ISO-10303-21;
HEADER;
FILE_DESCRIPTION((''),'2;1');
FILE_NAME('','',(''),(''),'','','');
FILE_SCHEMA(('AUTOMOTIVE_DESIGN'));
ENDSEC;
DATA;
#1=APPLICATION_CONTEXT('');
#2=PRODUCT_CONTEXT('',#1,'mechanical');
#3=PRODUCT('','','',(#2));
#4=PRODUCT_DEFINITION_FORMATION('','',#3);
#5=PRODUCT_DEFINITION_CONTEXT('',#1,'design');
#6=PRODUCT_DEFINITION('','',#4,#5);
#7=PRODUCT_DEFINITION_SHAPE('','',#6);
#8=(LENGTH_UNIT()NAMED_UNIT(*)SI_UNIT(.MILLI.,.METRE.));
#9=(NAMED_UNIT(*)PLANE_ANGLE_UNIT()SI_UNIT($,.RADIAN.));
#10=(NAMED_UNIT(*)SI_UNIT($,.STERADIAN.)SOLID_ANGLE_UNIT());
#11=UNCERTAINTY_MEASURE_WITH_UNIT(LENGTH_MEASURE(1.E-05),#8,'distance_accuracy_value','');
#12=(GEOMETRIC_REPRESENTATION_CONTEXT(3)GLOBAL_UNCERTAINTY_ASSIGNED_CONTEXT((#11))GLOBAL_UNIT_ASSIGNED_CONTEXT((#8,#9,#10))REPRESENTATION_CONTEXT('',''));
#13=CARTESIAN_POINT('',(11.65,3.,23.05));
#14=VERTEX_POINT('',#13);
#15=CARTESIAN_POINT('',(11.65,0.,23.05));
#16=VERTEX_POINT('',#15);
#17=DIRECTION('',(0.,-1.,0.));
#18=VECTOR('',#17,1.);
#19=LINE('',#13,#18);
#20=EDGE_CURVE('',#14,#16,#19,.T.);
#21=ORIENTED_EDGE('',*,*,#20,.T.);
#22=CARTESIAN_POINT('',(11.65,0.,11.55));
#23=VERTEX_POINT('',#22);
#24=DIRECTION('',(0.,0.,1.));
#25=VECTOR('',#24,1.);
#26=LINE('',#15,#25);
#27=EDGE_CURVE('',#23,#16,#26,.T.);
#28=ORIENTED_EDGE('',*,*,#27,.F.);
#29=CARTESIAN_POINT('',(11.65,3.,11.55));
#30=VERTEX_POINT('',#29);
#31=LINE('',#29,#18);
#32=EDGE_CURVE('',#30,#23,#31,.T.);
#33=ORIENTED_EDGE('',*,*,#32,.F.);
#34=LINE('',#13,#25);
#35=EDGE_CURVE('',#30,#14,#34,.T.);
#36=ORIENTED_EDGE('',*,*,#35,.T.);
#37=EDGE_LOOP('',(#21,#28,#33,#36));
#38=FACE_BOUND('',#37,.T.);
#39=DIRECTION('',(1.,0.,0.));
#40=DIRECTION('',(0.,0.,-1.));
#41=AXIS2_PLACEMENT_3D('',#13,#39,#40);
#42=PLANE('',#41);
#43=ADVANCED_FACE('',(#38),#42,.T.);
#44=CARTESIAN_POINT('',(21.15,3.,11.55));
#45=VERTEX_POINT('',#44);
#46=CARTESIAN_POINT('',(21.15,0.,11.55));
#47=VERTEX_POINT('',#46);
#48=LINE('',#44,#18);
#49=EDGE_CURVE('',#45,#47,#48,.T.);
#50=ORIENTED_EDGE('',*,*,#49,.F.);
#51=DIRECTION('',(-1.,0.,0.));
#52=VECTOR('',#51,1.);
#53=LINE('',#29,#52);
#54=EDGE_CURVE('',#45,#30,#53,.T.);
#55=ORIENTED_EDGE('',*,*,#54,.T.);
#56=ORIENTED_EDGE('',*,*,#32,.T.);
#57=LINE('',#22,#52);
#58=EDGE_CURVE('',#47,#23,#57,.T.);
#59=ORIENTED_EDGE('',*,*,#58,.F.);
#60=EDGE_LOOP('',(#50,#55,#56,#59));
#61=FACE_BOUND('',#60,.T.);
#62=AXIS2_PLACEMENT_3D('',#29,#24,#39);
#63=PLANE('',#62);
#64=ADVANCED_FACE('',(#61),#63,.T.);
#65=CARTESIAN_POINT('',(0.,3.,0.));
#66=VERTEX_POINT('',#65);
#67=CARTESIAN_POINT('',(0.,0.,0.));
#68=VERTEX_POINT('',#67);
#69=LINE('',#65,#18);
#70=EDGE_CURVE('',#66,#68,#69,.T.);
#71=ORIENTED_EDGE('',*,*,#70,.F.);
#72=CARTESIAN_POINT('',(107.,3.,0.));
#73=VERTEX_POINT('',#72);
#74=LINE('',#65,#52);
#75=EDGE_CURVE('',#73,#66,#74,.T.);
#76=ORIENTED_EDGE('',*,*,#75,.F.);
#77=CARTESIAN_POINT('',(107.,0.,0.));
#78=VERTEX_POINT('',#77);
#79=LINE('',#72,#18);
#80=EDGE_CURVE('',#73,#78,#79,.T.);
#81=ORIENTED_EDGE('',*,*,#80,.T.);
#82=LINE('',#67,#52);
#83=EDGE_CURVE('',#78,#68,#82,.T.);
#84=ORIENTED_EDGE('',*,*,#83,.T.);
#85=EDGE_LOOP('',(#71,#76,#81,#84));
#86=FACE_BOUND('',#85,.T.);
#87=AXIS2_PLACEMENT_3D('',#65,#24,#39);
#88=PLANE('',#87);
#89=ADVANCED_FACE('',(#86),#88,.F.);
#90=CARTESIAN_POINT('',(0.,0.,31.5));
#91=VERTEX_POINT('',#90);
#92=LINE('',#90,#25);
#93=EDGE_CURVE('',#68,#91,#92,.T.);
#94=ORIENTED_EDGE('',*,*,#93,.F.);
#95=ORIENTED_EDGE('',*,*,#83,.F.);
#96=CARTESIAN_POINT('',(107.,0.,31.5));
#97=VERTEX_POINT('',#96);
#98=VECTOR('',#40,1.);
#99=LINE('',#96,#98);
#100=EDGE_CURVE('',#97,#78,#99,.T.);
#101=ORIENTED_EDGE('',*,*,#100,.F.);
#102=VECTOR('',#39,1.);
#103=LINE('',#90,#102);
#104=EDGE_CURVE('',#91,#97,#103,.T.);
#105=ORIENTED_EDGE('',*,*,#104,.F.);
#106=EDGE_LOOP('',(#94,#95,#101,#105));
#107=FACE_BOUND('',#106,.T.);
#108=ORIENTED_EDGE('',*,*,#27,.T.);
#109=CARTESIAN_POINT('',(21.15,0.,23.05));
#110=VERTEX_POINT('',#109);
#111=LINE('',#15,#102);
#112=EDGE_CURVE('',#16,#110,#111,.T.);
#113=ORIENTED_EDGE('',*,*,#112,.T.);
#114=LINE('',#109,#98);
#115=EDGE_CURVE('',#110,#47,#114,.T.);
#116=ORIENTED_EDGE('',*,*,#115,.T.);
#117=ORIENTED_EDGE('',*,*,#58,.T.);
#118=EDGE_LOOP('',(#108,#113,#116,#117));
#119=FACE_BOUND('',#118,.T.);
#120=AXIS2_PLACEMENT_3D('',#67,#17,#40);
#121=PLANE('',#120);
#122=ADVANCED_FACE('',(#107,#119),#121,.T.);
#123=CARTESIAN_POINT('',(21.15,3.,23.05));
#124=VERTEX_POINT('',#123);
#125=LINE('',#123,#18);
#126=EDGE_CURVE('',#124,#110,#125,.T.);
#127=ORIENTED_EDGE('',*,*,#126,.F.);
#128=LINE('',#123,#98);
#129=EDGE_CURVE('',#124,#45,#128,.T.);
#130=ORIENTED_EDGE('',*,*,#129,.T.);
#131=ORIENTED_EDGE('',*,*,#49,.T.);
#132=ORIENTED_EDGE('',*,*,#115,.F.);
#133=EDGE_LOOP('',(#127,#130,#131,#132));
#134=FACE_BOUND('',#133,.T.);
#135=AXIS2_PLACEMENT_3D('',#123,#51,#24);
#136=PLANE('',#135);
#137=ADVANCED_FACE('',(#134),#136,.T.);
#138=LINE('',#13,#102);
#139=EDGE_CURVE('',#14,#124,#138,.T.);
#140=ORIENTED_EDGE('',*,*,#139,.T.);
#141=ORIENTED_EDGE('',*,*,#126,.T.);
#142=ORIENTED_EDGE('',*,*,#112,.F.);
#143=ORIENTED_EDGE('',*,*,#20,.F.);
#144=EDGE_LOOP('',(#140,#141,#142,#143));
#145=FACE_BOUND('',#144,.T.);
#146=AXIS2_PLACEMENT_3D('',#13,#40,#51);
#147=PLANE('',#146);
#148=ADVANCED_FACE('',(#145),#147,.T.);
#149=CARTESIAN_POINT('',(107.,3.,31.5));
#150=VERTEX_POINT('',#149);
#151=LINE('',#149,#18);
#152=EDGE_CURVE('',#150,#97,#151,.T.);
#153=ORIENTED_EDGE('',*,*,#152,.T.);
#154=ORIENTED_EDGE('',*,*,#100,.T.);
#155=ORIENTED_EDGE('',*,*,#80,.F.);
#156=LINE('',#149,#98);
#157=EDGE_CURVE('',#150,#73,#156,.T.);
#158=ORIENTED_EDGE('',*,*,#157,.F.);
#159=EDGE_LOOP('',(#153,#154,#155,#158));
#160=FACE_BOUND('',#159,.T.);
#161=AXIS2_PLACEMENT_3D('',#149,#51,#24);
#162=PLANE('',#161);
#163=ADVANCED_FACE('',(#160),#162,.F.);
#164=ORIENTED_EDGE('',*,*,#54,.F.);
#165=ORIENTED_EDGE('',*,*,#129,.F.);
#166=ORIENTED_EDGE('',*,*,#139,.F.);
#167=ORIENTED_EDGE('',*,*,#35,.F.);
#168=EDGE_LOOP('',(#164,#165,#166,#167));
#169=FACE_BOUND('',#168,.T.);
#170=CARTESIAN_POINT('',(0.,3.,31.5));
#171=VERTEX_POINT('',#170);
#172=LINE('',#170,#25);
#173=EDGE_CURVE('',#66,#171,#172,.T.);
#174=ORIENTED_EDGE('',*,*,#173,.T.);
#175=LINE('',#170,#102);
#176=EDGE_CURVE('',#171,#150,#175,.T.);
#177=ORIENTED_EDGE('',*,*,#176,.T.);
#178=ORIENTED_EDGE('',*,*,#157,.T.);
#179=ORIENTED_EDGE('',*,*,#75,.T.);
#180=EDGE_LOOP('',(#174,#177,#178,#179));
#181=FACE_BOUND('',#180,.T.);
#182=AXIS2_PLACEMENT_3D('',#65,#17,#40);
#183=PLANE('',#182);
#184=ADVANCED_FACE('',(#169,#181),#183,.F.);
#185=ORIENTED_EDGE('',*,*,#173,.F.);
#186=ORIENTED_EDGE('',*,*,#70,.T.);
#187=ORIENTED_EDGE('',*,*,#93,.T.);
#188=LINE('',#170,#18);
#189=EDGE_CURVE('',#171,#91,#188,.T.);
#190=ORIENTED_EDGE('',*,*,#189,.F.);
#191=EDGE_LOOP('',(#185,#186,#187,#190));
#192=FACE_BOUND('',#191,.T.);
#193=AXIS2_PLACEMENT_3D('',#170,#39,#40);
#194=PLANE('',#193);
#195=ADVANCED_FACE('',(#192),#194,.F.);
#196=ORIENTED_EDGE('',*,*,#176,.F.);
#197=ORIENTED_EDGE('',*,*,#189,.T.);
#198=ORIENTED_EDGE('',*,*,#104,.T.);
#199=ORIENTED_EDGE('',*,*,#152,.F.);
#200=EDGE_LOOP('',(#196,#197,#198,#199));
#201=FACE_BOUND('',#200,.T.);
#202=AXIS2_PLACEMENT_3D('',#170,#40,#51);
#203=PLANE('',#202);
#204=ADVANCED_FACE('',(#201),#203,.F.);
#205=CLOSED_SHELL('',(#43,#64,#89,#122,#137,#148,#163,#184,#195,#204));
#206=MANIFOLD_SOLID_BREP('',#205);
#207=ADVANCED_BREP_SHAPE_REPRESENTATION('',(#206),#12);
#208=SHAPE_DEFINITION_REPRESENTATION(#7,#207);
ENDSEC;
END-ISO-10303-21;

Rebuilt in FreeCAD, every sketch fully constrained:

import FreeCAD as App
import Part
import Sketcher

V = App.Vector

doc = App.newDocument("Part")
body = doc.addObject("PartDesign::Body", "Body")

# Sketch on XZ plane
sketch1 = body.newObject("Sketcher::SketchObject", "Sketch")
sketch1.AttachmentSupport = (doc.getObject("XZ_Plane"), [""])
sketch1.MapMode = "FlatFace"
sketch1.addGeometry([
    Part.LineSegment(V(0, 0, 0), V(0, 32, 0)),  # 0
    Part.LineSegment(V(0, 32, 0), V(107, 32, 0)),  # 1
    Part.LineSegment(V(107, 32, 0), V(107, 0, 0)),  # 2
    Part.LineSegment(V(107, 0, 0), V(0, 0, 0)),  # 3
    Part.LineSegment(V(21, 23, 0), V(12, 23, 0)),  # 4
    Part.LineSegment(V(12, 23, 0), V(12, 12, 0)),  # 5
    Part.LineSegment(V(12, 12, 0), V(21, 12, 0)),  # 6
    Part.LineSegment(V(21, 12, 0), V(21, 23, 0)),  # 7
], False)
sketch1.addConstraint([
    Sketcher.Constraint("Coincident", 0, 2, 1, 1),
    Sketcher.Constraint("Coincident", 1, 2, 2, 1),
    Sketcher.Constraint("Coincident", 2, 2, 3, 1),
    Sketcher.Constraint("Coincident", 3, 2, 0, 1),
    Sketcher.Constraint("Coincident", 4, 2, 5, 1),
    Sketcher.Constraint("Coincident", 5, 2, 6, 1),
    Sketcher.Constraint("Coincident", 6, 2, 7, 1),
    Sketcher.Constraint("Coincident", 7, 2, 4, 1),
    Sketcher.Constraint("Vertical", 0),
    Sketcher.Constraint("Horizontal", 1),
    Sketcher.Constraint("Vertical", 2),
    Sketcher.Constraint("Horizontal", 3),
    Sketcher.Constraint("Horizontal", 4),
    Sketcher.Constraint("Vertical", 5),
    Sketcher.Constraint("Horizontal", 6),
    Sketcher.Constraint("Vertical", 7),
    Sketcher.Constraint("Coincident", 3, 2, -1, 1),
    Sketcher.Constraint("DistanceX", 1, 1, 1, 2, 107.0),
    Sketcher.Constraint("DistanceX", 4, 2, 4, 1, 9.5),
    Sketcher.Constraint("DistanceY", 0, 1, 0, 2, 31.5),
    Sketcher.Constraint("DistanceY", 5, 2, 5, 1, 11.5),
    Sketcher.Constraint("DistanceX", -1, 1, 4, 2, 11.65),
    Sketcher.Constraint("DistanceY", -1, 1, 4, 2, 23.05),
])
pad1 = body.newObject("PartDesign::Pad", "Pad")
pad1.Profile = sketch1
pad1.Length = 3
pad1.Reversed = True

doc.recompute()
